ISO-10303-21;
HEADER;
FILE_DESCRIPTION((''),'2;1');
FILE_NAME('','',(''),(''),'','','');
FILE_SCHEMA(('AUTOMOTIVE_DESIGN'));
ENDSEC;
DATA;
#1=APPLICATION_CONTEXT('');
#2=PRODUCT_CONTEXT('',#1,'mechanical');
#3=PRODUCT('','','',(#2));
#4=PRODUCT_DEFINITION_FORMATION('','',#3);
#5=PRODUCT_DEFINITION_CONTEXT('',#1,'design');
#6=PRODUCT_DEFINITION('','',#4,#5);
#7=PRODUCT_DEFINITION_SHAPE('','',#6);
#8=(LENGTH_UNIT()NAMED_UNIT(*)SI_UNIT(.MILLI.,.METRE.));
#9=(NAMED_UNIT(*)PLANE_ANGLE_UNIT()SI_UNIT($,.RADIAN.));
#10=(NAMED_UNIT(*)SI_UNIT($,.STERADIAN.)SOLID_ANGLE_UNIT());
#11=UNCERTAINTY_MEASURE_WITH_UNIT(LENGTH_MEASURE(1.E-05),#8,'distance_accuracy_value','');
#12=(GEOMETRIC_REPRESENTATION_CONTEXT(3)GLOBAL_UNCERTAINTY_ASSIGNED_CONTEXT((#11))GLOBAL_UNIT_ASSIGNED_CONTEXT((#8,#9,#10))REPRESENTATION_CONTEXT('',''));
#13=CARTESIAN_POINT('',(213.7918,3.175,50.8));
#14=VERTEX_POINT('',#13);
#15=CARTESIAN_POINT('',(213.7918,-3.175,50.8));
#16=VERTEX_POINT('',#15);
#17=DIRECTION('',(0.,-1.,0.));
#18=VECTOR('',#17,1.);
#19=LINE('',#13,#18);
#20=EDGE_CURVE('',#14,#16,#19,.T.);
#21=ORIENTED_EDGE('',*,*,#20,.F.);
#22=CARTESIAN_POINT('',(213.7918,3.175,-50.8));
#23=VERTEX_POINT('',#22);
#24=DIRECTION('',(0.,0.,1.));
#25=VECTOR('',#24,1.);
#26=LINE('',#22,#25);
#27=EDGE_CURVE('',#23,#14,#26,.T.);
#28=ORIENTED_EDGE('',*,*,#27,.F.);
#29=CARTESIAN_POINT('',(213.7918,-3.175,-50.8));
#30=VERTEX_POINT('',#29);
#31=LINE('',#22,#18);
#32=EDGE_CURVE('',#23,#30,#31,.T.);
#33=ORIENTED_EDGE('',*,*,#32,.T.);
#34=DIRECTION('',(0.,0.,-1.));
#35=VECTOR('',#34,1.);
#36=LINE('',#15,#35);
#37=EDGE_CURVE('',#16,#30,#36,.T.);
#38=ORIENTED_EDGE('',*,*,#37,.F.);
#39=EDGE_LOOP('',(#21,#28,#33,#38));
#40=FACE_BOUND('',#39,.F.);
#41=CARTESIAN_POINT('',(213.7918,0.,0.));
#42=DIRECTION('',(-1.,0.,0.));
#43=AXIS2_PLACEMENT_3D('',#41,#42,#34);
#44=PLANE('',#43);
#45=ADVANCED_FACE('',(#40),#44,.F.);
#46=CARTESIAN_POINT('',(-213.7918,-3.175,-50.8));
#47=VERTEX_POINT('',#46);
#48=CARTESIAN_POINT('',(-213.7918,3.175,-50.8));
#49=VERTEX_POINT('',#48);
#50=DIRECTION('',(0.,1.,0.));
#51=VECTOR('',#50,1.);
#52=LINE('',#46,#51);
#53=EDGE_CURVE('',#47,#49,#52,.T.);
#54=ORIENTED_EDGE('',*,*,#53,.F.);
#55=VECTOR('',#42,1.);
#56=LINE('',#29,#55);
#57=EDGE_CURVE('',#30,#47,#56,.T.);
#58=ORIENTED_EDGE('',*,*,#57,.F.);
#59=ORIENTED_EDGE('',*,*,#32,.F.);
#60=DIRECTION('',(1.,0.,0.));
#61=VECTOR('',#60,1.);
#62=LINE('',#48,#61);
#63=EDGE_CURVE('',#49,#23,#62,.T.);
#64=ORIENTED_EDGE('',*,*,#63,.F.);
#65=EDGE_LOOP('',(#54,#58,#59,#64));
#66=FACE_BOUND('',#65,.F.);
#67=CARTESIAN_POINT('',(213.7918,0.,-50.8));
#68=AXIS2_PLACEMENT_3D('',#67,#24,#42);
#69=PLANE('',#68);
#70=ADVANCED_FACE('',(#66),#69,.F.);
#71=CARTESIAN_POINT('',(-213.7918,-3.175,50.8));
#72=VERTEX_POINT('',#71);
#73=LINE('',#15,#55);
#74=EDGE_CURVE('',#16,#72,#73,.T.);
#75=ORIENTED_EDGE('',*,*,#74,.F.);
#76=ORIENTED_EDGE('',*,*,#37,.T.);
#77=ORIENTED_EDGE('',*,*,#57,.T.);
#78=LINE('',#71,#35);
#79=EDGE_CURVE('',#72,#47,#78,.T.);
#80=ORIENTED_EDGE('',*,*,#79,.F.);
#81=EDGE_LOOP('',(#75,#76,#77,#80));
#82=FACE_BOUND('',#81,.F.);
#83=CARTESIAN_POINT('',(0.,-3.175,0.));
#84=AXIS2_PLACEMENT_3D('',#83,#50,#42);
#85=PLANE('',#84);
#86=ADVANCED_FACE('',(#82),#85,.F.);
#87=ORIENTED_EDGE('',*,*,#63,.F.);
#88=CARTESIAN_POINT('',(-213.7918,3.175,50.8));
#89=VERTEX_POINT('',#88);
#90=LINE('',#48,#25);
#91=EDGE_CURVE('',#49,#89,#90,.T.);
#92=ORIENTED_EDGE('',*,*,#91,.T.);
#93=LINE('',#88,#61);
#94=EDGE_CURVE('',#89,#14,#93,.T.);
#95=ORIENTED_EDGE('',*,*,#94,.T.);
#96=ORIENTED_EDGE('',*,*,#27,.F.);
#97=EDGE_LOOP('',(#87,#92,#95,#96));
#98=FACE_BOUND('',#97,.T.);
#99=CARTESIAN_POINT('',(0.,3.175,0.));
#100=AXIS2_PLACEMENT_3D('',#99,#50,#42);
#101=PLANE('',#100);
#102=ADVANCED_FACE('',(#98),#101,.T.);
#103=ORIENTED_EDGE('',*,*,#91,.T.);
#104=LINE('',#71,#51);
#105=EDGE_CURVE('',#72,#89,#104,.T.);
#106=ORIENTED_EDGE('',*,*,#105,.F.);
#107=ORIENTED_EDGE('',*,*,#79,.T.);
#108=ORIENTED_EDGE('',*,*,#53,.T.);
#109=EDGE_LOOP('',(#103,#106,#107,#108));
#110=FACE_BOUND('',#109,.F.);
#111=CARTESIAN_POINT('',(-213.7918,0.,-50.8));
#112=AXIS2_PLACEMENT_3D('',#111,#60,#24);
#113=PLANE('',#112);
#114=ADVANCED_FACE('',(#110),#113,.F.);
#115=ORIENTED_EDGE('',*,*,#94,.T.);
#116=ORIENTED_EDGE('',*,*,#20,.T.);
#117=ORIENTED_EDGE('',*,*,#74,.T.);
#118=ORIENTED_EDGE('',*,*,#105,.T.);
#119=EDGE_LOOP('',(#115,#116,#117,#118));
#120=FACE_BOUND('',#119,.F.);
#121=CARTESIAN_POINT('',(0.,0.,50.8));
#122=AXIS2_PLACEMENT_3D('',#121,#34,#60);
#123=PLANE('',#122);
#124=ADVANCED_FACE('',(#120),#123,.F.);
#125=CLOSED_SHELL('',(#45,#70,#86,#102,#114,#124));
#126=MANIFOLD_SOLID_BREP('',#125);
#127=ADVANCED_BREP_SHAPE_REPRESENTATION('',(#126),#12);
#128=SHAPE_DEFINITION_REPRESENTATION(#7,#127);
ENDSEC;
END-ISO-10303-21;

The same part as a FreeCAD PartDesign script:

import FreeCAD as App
import Part
import Sketcher

V = App.Vector
Q = App.Units.Quantity


def add_polygon(sketch, points):
    """Adds a closed chain of lines whose ends are joined by coincident constraints."""
    first, n = sketch.GeometryCount, len(points)
    for a, b in zip(points, points[1:] + points[:1]):
        sketch.addGeometry(Part.LineSegment(App.Vector(*a, 0), App.Vector(*b, 0)), False)
    for i in range(n):
        sketch.addConstraint(Sketcher.Constraint("Coincident", first + i, 2, first + (i + 1) % n, 1))

doc = App.newDocument("Part")
body = doc.addObject("PartDesign::Body", "Body")

# Sketch on XZ plane
sketch1 = doc.addObject("Sketcher::SketchObject", "Sketch")
body.addObject(sketch1)
sketch1.AttachmentSupport = (doc.XZ_Plane, [""])
sketch1.MapMode = "FlatFace"
add_polygon(sketch1, [(214, -51), (-214, -51), (-214, 51), (214, 51)])  # lines 0-3
sketch1.addConstraint([
    Sketcher.Constraint("Horizontal", 0),
    Sketcher.Constraint("Vertical", 1),
    Sketcher.Constraint("Horizontal", 2),
    Sketcher.Constraint("Vertical", 3),
    Sketcher.Constraint("Symmetric", 0, 2, 2, 2, -1, 1),
    Sketcher.Constraint("DistanceY", 1, 1, 1, 2, Q("4 in")),
    Sketcher.Constraint("DistanceX", 0, 2, 0, 1, Q("16.834 in")),
])
pad1 = doc.addObject("PartDesign::Pad", "Pad")
body.addObject(pad1)
pad1.Profile = sketch1
pad1.Length = Q("0.25 in")
pad1.Midplane = True

doc.recompute()
